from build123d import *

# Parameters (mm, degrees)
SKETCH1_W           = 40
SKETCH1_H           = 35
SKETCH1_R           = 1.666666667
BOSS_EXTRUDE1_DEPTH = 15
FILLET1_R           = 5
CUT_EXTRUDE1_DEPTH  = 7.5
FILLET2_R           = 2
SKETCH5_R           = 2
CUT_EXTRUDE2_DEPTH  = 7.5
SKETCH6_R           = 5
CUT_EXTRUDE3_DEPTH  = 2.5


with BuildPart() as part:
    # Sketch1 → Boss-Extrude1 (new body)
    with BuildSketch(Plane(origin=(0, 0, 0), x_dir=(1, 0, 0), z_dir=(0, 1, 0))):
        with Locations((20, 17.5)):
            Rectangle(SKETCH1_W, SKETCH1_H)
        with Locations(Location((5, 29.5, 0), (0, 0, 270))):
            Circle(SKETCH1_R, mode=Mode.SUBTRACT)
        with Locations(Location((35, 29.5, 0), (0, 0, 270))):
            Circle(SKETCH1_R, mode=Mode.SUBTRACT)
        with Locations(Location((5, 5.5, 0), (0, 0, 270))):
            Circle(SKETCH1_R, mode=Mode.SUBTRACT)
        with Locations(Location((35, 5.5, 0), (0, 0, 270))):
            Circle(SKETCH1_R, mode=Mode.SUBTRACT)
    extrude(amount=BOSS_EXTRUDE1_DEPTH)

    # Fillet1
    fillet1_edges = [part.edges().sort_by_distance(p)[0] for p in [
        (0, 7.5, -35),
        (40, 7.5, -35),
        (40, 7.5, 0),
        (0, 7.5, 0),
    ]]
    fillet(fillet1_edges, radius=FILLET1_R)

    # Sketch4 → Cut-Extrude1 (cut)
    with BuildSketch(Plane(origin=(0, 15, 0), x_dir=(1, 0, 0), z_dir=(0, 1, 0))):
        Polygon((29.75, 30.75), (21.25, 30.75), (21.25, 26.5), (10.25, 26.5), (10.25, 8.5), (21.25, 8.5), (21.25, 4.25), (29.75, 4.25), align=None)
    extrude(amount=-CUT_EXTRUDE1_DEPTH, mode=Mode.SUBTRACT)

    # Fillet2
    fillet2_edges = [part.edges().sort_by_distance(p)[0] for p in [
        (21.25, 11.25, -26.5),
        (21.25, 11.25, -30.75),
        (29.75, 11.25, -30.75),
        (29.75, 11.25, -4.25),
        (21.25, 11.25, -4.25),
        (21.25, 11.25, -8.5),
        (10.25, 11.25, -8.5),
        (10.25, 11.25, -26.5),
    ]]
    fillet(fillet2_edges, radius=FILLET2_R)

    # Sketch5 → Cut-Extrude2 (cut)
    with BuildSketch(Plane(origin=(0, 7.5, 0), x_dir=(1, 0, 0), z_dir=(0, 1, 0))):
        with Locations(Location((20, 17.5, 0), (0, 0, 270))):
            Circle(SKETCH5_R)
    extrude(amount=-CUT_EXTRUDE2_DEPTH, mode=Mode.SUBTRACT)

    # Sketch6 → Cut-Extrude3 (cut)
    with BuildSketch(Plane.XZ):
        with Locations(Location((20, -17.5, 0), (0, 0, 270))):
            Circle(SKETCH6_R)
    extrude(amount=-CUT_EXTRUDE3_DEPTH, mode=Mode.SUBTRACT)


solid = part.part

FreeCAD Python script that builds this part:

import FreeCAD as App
import Part
import Sketcher

V = App.Vector
Q = App.Units.Quantity


def edges_at(feature, points):
    """Names of the edges that pass closest to the given points."""
    edges = feature.Shape.Edges
    near = lambda p: min(range(len(edges)), key=lambda i: edges[i].distToShape(Part.Vertex(*p))[0])
    return sorted({f"Edge{near(p) + 1}" for p in points})

doc = App.newDocument("Part")
body = doc.addObject("PartDesign::Body", "Body")

sketch1 = body.newObject("Sketcher::SketchObject", "Sketch")
sketch1.AttachmentSupport = (doc.getObject("XZ_Plane"), [""])
sketch1.MapMode = "FlatFace"
sketch1.addGeometry([
    Part.LineSegment(V(0, -35, 0), V(0, 0, 0)),
    Part.LineSegment(V(0, 0, 0), V(40, 0, 0)),
    Part.LineSegment(V(40, 0, 0), V(40, -35, 0)),
    Part.LineSegment(V(40, -35, 0), V(0, -35, 0)),
    Part.Circle(V(5, -5.5, 0), V(0, 0, 1), 1.7),
    Part.Circle(V(35, -5.5, 0), V(0, 0, 1), 1.7),
    Part.Circle(V(5, -29.5, 0), V(0, 0, 1), 1.7),
    Part.Circle(V(35, -29.5, 0), V(0, 0, 1), 1.7),
], False)
sketch1.addConstraint([
    Sketcher.Constraint("Coincident", 0, 2, 1, 1),
    Sketcher.Constraint("Coincident", 1, 2, 2, 1),
    Sketcher.Constraint("Coincident", 2, 2, 3, 1),
    Sketcher.Constraint("Coincident", 3, 2, 0, 1),
    Sketcher.Constraint("Vertical", 0),
    Sketcher.Constraint("Horizontal", 1),
    Sketcher.Constraint("Vertical", 2),
    Sketcher.Constraint("Horizontal", 3),
    Sketcher.Constraint("Coincident", 0, 2, -1, 1),
    Sketcher.Constraint("Equal", 4, 5),
    Sketcher.Constraint("Equal", 5, 6),
    Sketcher.Constraint("Equal", 6, 7),
    Sketcher.Constraint("Horizontal", 4, 3, 5, 3),
    Sketcher.Constraint("Horizontal", 6, 3, 7, 3),
    Sketcher.Constraint("Vertical", 4, 3, 6, 3),
    Sketcher.Constraint("Vertical", 5, 3, 7, 3),
    Sketcher.Constraint("DistanceX", 1, 1, 1, 2, Q("40 mm")),
    Sketcher.Constraint("DistanceY", 0, 1, 0, 2, Q("35 mm")),
    Sketcher.Constraint("DistanceX", -1, 1, 4, 3, Q("5 mm")),
    Sketcher.Constraint("DistanceX", -1, 1, 5, 3, Q("35 mm")),
    Sketcher.Constraint("DistanceY", 6, 3, 4, 3, Q("24 mm")),
    Sketcher.Constraint("DistanceY", 4, 3, -1, 1, Q("5.5 mm")),
    Sketcher.Constraint("Diameter", 4, Q("3.333333 mm")),
])
pad1 = body.newObject("PartDesign::Pad", "Pad")
pad1.Profile = sketch1
pad1.Length = 15
pad1.Reversed = True
doc.recompute()

fillet = body.newObject("PartDesign::Fillet", "Fillet")
fillet.Base = (pad1, edges_at(pad1, [
    (0, 7.5, -35),
    (40, 7.5, -35),
    (40, 7.5, 0),
    (0, 7.5, 0),
]))
fillet.Radius = 5

sketch2 = body.newObject("Sketcher::SketchObject", "Sketch001")
sketch2.AttachmentSupport = (doc.getObject("XZ_Plane"), [""])
sketch2.MapMode = "FlatFace"
sketch2.AttachmentOffset = App.Placement(V(0, 0, -15), App.Rotation())
sketch2.addGeometry([
    Part.LineSegment(V(29.8, -30.8, 0), V(21.2, -30.8, 0)),
    Part.LineSegment(V(21.2, -30.8, 0), V(21.2, -26.5, 0)),
    Part.LineSegment(V(21.2, -26.5, 0), V(10.2, -26.5, 0)),
    Part.LineSegment(V(10.2, -26.5, 0), V(10.2, -8.5, 0)),
    Part.LineSegment(V(10.2, -8.5, 0), V(21.2, -8.5, 0)),
    Part.LineSegment(V(21.2, -8.5, 0), V(21.2, -4.2, 0)),
    Part.LineSegment(V(21.2, -4.2, 0), V(29.8, -4.2, 0)),
    Part.LineSegment(V(29.8, -4.2, 0), V(29.8, -30.8, 0)),
], False)
sketch2.addConstraint([
    Sketcher.Constraint("Coincident", 0, 2, 1, 1),
    Sketcher.Constraint("Coincident", 1, 2, 2, 1),
    Sketcher.Constraint("Coincident", 2, 2, 3, 1),
    Sketcher.Constraint("Coincident", 3, 2, 4, 1),
    Sketcher.Constraint("Coincident", 4, 2, 5, 1),
    Sketcher.Constraint("Coincident", 5, 2, 6, 1),
    Sketcher.Constraint("Coincident", 6, 2, 7, 1),
    Sketcher.Constraint("Coincident", 7, 2, 0, 1),
    Sketcher.Constraint("Horizontal", 0),
    Sketcher.Constraint("Vertical", 1),
    Sketcher.Constraint("Horizontal", 2),
    Sketcher.Constraint("Vertical", 3),
    Sketcher.Constraint("Horizontal", 4),
    Sketcher.Constraint("Vertical", 5),
    Sketcher.Constraint("Horizontal", 6),
    Sketcher.Constraint("Vertical", 7),
    Sketcher.Constraint("Vertical", 1, 2, 4, 2),
    Sketcher.Constraint("Equal", 1, 5),
    Sketcher.Constraint("DistanceX", 2, 2, 2, 1, Q("11 mm")),
    Sketcher.Constraint("DistanceY", 3, 1, 3, 2, Q("18 mm")),
    Sketcher.Constraint("DistanceX", 0, 2, 0, 1, Q("8.5 mm")),
    Sketcher.Constraint("DistanceY", 7, 2, 7, 1, Q("26.5 mm")),
    Sketcher.Constraint("DistanceY", 1, 2, -1, 1, Q("26.5 mm")),
    Sketcher.Constraint("DistanceX", -1, 1, 0, 2, Q("21.25 mm")),
])
pocket1 = body.newObject("PartDesign::Pocket", "Pocket")
pocket1.Profile = sketch2
pocket1.Length = 7.5
pocket1.Reversed = True
doc.recompute()

fillet2 = body.newObject("PartDesign::Fillet", "Fillet001")
fillet2.Base = (pocket1, edges_at(pocket1, [
    (21.25, 11.25, -26.5),
    (21.25, 11.25, -30.75),
    (29.75, 11.25, -30.75),
    (29.75, 11.25, -4.25),
    (21.25, 11.25, -4.25),
    (21.25, 11.25, -8.5),
    (10.25, 11.25, -8.5),
    (10.25, 11.25, -26.5),
]))
fillet2.Radius = 2

sketch3 = body.newObject("Sketcher::SketchObject", "Sketch002")
sketch3.AttachmentSupport = (doc.getObject("XZ_Plane"), [""])
sketch3.MapMode = "FlatFace"
sketch3.AttachmentOffset = App.Placement(V(0, 0, -7.5), App.Rotation())
sketch3.addGeometry(Part.Circle(V(20, -17.5, 0), V(0, 0, 1), 2), False)
sketch3.addConstraint([
    Sketcher.Constraint("Diameter", 0, Q("4 mm")),
    Sketcher.Constraint("DistanceX", -1, 1, 0, 3, Q("20 mm")),
    Sketcher.Constraint("DistanceY", 0, 3, -1, 1, Q("17.5 mm")),
])
pocket2 = body.newObject("PartDesign::Pocket", "Pocket001")
pocket2.Profile = sketch3
pocket2.Length = 7.5
pocket2.Reversed = True

sketch4 = body.newObject("Sketcher::SketchObject", "Sketch003")
sketch4.AttachmentSupport = (doc.getObject("XZ_Plane"), [""])
sketch4.MapMode = "FlatFace"
sketch4.addGeometry(Part.Circle(V(20, -18, 0), V(0, 0, 1), 5), False)
sketch4.addConstraint([
    Sketcher.Constraint("Diameter", 0, Q("10 mm")),
    Sketcher.Constraint("DistanceX", -1, 1, 0, 3, Q("20 mm")),
    Sketcher.Constraint("DistanceY", 0, 3, -1, 1, Q("17.5 mm")),
])
pocket3 = body.newObject("PartDesign::Pocket", "Pocket002")
pocket3.Profile = sketch4
pocket3.Length = 2.5

doc.recompute()
